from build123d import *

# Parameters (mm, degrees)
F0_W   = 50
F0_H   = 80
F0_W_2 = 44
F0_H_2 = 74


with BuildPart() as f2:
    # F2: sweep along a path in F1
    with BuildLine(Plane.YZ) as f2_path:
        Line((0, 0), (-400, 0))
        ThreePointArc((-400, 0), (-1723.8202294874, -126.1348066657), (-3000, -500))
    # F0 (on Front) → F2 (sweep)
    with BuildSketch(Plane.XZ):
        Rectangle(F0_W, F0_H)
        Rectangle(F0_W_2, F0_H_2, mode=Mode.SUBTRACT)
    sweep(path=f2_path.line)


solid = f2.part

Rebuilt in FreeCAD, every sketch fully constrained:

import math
import FreeCAD as App
import Part
import Sketcher
from FreeCAD import Vector
Q = App.Units.Quantity

doc = App.newDocument("Part")
body = doc.addObject("PartDesign::Body", "Body")

sketch1 = body.newObject("Sketcher::SketchObject", "Sketch")
sketch1.AttachmentSupport = (doc.getObject("XZ_Plane"), [""])
sketch1.MapMode = "FlatFace"
sketch1.addGeometry([
    Part.LineSegment(Vector(-25, 40, 0), Vector(-25, -40, 0)),
    Part.LineSegment(Vector(-25, -40, 0), Vector(25, -40, 0)),
    Part.LineSegment(Vector(25, -40, 0), Vector(25, 40, 0)),
    Part.LineSegment(Vector(25, 40, 0), Vector(-25, 40, 0)),
    Part.LineSegment(Vector(22, -37, 0), Vector(-22, -37, 0)),
    Part.LineSegment(Vector(-22, -37, 0), Vector(-22, 37, 0)),
    Part.LineSegment(Vector(-22, 37, 0), Vector(22, 37, 0)),
    Part.LineSegment(Vector(22, 37, 0), Vector(22, -37, 0)),
], False)
sketch1.addConstraint([
    Sketcher.Constraint("Coincident", 0, 2, 1, 1),
    Sketcher.Constraint("Coincident", 1, 2, 2, 1),
    Sketcher.Constraint("Coincident", 2, 2, 3, 1),
    Sketcher.Constraint("Coincident", 3, 2, 0, 1),
    Sketcher.Constraint("Coincident", 4, 2, 5, 1),
    Sketcher.Constraint("Coincident", 5, 2, 6, 1),
    Sketcher.Constraint("Coincident", 6, 2, 7, 1),
    Sketcher.Constraint("Coincident", 7, 2, 4, 1),
    Sketcher.Constraint("Vertical", 0),
    Sketcher.Constraint("Horizontal", 1),
    Sketcher.Constraint("Vertical", 2),
    Sketcher.Constraint("Horizontal", 3),
    Sketcher.Constraint("Horizontal", 4),
    Sketcher.Constraint("Vertical", 5),
    Sketcher.Constraint("Horizontal", 6),
    Sketcher.Constraint("Vertical", 7),
    Sketcher.Constraint("Symmetric", 0, 2, 2, 2, -1, 1),
    Sketcher.Constraint("Symmetric", 4, 2, 6, 2, -1, 1),
    Sketcher.Constraint("DistanceX", 1, 1, 1, 2, Q("50 mm")),
    Sketcher.Constraint("DistanceX", 4, 2, 4, 1, Q("44 mm")),
    Sketcher.Constraint("DistanceY", 0, 2, 0, 1, Q("80 mm")),
    Sketcher.Constraint("DistanceY", 5, 1, 5, 2, Q("74 mm")),
])

sketch2 = body.newObject("Sketcher::SketchObject", "Sketch001")
sketch2.AttachmentSupport = (doc.getObject("YZ_Plane"), [""])
sketch2.MapMode = "FlatFace"
sketch2.addGeometry([
    Part.LineSegment(Vector(0, 0, 0), Vector(-400, 0, 0)),
    Part.ArcOfCircle(Part.Circle(Vector(-400, -7010, 0), Vector(0, 0, 1), 7010), math.radians(90), math.radians(112)),
], False)
sketch2.addConstraint([
    Sketcher.Constraint("Tangent", 0, 2, 1, 1),
    Sketcher.Constraint("Horizontal", 0),
    Sketcher.Constraint("Coincident", 0, 1, -1, 1),
    Sketcher.Constraint("Radius", 1, Q("7010 mm")),
    Sketcher.Constraint("DistanceX", 0, 2, 0, 1, Q("400 mm")),
    Sketcher.Constraint("DistanceX", 1, 2, -1, 1, Q("3000 mm")),
])
doc.recompute()

additivepipe = body.newObject("PartDesign::AdditivePipe", "AdditivePipe")
additivepipe.Profile = sketch1
additivepipe.Spine = (sketch2, ["Edge1", "Edge2"])

doc.recompute()
